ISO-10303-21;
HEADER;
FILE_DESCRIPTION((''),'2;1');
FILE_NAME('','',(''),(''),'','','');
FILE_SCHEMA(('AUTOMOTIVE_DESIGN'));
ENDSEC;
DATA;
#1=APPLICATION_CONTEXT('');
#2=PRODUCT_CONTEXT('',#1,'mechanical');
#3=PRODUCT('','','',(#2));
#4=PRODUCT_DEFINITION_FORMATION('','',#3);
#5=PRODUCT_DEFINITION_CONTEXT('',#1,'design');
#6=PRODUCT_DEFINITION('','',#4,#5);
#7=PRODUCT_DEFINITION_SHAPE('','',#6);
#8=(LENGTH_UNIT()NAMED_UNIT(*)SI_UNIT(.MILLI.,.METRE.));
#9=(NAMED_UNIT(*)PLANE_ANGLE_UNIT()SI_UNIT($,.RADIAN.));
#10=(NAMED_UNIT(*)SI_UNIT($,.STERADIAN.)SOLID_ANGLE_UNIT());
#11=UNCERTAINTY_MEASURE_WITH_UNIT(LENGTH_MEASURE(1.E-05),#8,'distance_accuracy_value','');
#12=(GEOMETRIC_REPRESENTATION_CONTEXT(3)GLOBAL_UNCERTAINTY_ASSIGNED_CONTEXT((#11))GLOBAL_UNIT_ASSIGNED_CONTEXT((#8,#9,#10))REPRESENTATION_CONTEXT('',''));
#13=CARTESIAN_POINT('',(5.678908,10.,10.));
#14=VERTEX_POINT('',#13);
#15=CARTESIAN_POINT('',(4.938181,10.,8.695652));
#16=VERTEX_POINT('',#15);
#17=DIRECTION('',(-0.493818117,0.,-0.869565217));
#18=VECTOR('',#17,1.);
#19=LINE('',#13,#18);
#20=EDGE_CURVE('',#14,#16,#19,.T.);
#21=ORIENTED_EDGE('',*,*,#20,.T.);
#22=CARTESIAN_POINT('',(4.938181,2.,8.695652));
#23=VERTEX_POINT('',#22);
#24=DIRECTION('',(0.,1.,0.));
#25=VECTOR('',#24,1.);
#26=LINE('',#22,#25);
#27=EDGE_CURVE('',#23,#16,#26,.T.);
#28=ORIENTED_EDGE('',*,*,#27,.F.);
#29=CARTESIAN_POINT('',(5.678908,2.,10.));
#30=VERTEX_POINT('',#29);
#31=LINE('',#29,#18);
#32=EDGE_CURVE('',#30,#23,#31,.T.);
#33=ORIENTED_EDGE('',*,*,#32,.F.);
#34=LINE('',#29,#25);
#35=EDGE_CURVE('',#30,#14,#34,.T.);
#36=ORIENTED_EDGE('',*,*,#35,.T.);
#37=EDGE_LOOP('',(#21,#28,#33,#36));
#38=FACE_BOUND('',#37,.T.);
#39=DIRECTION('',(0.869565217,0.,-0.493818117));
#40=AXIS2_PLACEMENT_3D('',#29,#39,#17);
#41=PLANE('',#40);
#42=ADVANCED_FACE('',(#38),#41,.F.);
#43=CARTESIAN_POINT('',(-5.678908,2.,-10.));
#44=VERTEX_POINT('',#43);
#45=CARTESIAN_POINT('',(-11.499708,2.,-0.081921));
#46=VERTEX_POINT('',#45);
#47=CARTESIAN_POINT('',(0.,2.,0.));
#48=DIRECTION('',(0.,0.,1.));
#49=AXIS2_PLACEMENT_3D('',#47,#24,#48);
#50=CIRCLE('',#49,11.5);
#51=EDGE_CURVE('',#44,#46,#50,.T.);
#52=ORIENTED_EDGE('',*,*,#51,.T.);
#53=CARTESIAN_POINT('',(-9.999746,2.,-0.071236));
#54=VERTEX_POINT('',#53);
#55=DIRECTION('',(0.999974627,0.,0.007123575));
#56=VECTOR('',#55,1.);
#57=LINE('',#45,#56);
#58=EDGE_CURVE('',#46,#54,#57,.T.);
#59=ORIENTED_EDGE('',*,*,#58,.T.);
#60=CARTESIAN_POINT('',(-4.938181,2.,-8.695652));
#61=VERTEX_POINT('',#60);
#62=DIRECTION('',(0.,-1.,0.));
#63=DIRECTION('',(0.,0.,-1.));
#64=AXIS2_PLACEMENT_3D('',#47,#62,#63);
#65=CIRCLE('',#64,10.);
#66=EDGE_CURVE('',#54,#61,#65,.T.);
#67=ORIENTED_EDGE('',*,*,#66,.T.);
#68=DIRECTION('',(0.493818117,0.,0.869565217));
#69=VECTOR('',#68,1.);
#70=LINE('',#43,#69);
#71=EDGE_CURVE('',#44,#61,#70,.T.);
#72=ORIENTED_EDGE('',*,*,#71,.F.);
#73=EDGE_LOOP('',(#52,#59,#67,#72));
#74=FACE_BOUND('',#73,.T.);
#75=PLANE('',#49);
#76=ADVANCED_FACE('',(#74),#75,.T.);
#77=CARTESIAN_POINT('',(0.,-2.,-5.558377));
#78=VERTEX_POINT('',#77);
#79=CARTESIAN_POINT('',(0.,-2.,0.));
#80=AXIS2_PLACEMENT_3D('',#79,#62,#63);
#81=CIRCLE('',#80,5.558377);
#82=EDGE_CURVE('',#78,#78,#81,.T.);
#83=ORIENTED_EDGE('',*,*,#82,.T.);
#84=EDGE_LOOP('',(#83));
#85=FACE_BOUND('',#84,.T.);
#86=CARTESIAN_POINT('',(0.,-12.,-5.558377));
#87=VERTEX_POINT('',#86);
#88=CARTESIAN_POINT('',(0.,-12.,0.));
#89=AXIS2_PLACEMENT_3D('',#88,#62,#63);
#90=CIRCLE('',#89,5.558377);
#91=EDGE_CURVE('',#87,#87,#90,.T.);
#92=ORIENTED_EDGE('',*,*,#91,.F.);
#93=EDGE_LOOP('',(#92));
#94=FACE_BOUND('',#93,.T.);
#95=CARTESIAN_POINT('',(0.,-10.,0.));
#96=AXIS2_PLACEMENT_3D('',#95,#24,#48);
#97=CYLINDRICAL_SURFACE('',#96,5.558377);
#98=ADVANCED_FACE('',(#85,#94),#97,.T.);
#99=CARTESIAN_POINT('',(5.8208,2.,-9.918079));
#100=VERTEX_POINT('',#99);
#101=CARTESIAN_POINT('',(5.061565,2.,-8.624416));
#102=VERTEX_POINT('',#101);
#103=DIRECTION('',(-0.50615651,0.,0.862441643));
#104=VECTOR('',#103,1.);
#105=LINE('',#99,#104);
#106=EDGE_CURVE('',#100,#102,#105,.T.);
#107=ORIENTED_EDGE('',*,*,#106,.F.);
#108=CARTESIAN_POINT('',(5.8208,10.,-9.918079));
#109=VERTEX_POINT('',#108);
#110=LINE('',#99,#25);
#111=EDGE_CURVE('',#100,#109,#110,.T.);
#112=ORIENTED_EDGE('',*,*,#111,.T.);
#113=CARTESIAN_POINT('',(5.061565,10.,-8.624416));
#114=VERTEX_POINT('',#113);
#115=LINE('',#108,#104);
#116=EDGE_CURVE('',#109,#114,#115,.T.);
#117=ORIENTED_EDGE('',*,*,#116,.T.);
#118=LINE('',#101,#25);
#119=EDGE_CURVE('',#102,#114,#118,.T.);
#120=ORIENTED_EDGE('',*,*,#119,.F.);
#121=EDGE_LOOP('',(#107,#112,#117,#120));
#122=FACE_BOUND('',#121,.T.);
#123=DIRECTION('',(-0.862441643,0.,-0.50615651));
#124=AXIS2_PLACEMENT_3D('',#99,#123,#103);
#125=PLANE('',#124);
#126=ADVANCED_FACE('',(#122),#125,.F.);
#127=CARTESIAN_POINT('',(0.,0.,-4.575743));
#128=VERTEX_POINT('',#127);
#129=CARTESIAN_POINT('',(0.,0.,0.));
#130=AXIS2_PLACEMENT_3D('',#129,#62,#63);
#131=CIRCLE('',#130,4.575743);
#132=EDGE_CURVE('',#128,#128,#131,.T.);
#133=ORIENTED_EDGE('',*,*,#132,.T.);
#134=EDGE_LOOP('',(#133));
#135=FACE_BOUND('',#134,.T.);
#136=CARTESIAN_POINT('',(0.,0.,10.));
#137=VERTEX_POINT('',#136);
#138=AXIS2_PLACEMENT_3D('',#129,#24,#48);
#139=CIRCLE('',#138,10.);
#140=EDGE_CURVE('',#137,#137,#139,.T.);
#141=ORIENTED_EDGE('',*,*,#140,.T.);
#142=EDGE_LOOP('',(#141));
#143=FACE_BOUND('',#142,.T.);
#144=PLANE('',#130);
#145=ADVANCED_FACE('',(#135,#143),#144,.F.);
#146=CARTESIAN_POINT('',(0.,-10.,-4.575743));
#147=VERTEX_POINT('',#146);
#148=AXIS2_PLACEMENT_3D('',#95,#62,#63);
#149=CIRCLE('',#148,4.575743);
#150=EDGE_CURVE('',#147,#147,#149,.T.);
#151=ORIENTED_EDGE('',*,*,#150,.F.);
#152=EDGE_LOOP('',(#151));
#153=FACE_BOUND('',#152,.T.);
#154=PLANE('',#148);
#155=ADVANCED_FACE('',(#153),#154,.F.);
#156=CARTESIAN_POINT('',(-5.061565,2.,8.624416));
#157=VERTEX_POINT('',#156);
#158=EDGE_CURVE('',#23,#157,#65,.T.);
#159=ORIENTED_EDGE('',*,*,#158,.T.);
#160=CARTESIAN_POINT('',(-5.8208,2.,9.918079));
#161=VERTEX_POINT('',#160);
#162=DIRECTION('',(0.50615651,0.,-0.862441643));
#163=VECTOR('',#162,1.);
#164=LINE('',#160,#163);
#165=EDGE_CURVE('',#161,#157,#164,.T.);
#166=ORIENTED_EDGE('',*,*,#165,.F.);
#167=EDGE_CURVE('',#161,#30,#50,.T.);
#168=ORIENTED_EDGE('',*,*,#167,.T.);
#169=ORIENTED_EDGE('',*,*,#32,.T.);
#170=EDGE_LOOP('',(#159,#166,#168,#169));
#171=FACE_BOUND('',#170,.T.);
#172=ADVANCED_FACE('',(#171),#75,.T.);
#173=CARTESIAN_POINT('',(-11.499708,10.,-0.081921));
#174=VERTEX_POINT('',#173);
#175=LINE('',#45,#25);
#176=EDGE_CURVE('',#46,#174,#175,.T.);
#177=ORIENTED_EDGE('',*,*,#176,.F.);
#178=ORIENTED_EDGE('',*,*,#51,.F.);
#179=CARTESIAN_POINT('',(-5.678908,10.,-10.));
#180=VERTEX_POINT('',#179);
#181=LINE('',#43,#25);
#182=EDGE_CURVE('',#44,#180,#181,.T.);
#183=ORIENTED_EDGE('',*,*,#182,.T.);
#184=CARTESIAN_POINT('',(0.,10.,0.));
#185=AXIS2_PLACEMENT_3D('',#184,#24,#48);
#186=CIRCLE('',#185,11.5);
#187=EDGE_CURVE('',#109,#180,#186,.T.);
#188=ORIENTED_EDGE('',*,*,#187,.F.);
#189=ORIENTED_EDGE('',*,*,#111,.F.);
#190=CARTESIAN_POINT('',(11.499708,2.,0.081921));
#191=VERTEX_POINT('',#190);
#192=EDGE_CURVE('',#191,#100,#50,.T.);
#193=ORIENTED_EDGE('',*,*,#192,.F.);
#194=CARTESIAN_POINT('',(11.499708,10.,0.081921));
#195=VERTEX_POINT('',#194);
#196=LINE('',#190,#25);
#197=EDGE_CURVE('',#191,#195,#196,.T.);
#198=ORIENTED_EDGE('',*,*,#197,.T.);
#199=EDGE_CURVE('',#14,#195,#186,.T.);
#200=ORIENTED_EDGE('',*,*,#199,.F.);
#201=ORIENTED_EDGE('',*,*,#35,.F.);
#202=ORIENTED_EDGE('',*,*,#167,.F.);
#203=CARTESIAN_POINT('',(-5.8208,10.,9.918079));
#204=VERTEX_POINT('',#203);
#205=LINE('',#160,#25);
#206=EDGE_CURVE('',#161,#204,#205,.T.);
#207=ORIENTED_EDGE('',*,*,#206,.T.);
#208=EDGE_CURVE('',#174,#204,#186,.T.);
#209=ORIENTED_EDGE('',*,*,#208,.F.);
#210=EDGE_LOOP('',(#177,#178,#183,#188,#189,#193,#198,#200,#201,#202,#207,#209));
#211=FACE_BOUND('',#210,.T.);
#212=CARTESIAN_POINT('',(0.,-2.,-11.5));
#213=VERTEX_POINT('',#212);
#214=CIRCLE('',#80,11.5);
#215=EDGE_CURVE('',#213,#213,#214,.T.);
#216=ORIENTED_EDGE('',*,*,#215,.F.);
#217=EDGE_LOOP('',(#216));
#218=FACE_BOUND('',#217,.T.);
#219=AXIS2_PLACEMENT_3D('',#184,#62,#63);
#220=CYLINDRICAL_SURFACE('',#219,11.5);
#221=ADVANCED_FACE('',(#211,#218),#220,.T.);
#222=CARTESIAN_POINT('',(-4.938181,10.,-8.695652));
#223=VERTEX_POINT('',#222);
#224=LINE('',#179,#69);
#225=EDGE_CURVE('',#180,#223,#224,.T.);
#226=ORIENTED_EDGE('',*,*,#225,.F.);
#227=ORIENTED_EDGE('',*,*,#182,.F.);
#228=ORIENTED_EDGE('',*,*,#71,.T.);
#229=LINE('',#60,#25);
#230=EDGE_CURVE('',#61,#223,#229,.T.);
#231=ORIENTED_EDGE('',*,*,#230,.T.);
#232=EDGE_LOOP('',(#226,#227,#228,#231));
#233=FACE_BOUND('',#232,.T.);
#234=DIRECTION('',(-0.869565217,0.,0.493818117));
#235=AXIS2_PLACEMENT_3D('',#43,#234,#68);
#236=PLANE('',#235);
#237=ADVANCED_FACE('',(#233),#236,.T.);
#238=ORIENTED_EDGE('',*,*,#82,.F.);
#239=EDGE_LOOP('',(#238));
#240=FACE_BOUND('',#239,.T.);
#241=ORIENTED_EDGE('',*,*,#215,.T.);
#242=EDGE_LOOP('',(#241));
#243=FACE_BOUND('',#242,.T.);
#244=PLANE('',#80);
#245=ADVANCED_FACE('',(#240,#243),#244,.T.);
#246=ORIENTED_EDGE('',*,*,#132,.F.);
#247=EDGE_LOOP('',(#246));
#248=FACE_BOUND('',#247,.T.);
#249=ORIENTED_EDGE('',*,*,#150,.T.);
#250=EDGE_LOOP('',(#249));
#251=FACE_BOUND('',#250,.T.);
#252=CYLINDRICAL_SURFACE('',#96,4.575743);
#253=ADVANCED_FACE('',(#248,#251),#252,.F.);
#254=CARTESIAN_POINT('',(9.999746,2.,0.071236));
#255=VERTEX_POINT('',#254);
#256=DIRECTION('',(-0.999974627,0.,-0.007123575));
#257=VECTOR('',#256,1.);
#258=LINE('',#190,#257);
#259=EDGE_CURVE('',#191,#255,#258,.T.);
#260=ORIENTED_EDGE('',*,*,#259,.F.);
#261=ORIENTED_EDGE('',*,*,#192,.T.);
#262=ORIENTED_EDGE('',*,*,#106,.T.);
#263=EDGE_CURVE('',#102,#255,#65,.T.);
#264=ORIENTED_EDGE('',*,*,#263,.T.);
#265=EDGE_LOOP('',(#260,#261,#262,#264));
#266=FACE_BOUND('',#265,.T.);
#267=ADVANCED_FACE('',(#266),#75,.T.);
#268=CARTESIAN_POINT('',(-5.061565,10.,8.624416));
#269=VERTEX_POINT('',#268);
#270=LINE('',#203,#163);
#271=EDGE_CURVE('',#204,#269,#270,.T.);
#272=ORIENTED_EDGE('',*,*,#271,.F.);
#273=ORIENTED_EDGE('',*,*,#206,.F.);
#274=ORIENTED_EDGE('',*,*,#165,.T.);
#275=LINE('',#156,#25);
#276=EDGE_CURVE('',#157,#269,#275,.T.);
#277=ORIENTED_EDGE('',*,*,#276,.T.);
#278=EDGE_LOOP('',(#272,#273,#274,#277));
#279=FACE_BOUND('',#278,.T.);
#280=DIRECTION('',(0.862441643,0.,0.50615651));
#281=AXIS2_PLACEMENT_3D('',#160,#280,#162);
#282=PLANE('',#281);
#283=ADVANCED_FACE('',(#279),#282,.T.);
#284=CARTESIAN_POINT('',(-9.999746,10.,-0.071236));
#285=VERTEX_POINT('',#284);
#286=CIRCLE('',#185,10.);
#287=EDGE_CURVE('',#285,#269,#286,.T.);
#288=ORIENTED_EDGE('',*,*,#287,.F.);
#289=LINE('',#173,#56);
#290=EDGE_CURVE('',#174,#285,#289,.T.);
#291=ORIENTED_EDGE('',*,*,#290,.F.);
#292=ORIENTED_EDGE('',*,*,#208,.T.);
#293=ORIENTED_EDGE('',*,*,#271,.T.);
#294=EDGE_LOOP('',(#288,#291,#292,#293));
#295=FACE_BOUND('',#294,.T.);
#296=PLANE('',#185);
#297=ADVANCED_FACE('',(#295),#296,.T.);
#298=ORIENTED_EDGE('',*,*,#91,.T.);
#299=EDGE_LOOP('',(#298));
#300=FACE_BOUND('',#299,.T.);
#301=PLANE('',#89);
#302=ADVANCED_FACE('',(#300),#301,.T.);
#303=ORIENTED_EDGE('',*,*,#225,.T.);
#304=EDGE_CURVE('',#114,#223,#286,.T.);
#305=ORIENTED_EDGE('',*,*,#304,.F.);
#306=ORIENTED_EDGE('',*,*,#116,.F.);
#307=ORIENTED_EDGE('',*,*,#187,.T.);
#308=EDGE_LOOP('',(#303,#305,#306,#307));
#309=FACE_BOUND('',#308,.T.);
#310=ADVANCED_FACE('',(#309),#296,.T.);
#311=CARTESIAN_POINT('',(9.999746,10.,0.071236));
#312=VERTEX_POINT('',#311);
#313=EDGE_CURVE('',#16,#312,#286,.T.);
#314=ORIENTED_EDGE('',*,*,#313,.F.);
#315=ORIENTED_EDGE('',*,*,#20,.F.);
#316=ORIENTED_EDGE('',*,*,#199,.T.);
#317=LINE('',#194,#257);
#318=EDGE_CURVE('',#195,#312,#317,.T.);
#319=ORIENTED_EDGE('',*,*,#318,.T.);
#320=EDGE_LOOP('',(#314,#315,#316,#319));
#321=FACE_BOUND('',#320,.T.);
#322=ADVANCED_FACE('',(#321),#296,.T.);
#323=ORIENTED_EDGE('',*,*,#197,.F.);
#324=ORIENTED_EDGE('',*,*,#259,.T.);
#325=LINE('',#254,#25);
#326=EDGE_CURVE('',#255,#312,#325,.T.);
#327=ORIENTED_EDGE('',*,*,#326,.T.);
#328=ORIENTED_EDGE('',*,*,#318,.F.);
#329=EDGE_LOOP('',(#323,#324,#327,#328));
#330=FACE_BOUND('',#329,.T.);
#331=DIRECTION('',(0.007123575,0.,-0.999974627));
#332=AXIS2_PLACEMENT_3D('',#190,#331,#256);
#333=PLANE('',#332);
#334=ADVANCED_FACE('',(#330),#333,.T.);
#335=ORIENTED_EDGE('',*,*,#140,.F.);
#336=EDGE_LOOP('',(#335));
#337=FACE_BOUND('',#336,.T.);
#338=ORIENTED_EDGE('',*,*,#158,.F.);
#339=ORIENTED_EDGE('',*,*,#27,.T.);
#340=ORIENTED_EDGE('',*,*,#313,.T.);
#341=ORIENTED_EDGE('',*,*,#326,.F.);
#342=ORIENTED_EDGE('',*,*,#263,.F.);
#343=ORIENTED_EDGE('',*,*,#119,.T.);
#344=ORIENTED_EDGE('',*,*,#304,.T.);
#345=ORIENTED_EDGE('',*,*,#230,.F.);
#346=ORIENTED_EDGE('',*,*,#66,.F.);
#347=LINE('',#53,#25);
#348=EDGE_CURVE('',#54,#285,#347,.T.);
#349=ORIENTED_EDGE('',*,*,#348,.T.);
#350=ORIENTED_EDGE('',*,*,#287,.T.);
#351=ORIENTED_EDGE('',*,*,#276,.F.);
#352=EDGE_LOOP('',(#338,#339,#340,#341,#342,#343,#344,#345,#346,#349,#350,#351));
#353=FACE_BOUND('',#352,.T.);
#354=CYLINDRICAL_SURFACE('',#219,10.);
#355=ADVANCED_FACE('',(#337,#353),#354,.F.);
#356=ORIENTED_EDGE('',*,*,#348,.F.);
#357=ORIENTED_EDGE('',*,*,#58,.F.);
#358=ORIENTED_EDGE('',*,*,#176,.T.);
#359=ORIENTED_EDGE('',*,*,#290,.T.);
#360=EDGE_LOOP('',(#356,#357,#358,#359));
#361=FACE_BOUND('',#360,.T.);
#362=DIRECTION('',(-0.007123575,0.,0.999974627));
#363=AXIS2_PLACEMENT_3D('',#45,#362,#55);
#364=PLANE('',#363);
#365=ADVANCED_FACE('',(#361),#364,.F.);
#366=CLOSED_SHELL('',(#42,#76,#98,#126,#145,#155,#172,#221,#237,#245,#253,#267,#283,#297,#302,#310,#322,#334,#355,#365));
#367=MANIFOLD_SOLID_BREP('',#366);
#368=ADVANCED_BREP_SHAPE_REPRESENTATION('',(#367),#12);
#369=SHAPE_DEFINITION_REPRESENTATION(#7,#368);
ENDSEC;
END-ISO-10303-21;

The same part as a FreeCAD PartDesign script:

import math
import FreeCAD as App
import Part
import Sketcher

doc = App.newDocument("Part")
body = doc.addObject("PartDesign::Body", "Body")

# Sketch on XZ plane
sketch1 = doc.addObject("Sketcher::SketchObject", "Sketch")
body.addObject(sketch1)
sketch1.AttachmentSupport = (doc.XZ_Plane, [""])
sketch1.MapMode = "FlatFace"
sketch1.addGeometry([
    Part.Circle(App.Vector(0, 0, 0), App.Vector(0, 0, 1), 11.5),
    Part.Circle(App.Vector(0, 0, 0), App.Vector(0, 0, 1), 10),
], False)
sketch1.addConstraint([
    Sketcher.Constraint("Coincident", 0, 3, -1, 1),
    Sketcher.Constraint("Coincident", 1, 3, -1, 1),
    Sketcher.Constraint("Diameter", 0, 23.0),
    Sketcher.Constraint("Diameter", 1, 20.0),
])
pad1 = doc.addObject("PartDesign::Pad", "Pad")
body.addObject(pad1)
pad1.Profile = sketch1
pad1.Length = 10
pad1.Reversed = True

# Sketch on XZ plane
sketch2 = doc.addObject("Sketcher::SketchObject", "Sketch001")
body.addObject(sketch2)
sketch2.AttachmentSupport = (doc.XZ_Plane, [""])
sketch2.MapMode = "FlatFace"
sketch2.addGeometry([
    Part.Circle(App.Vector(0, 0, 0), App.Vector(0, 0, 1), 11.5),
    Part.Circle(App.Vector(0, 0, 0), App.Vector(0, 0, 1), 5.558377),
], False)
sketch2.addConstraint([
    Sketcher.Constraint("Coincident", 0, 3, -1, 1),
    Sketcher.Constraint("Coincident", 1, 3, -1, 1),
    Sketcher.Constraint("Diameter", 0, 23.0),
    Sketcher.Constraint("Diameter", 1, 11.116753),
])
pad2 = doc.addObject("PartDesign::Pad", "Pad001")
body.addObject(pad2)
pad2.Profile = sketch2
pad2.Length = 2

# Sketch on XZ plane
sketch3 = doc.addObject("Sketcher::SketchObject", "Sketch002")
body.addObject(sketch3)
sketch3.AttachmentSupport = (doc.XZ_Plane, [""])
sketch3.MapMode = "FlatFace"
sketch3.addGeometry([
    Part.Circle(App.Vector(0, 0, 0), App.Vector(0, 0, 1), 5.558377),
    Part.Circle(App.Vector(0, 0, 0), App.Vector(0, 0, 1), 4.575743),
], False)
sketch3.addConstraint([
    Sketcher.Constraint("Coincident", 0, 3, -1, 1),
    Sketcher.Constraint("Coincident", 1, 3, -1, 1),
    Sketcher.Constraint("Diameter", 0, 11.116753),
    Sketcher.Constraint("Diameter", 1, 9.151487),
])
pad3 = doc.addObject("PartDesign::Pad", "Pad002")
body.addObject(pad3)
pad3.Profile = sketch3
pad3.Length = 10

# Sketch on XZ plane
sketch4 = doc.addObject("Sketcher::SketchObject", "Sketch003")
body.addObject(sketch4)
sketch4.AttachmentSupport = (doc.XZ_Plane, [""])
sketch4.MapMode = "FlatFace"
sketch4.AttachmentOffset = App.Placement(App.Vector(0, 0, 10), App.Rotation())
sketch4.addGeometry(Part.Circle(App.Vector(0, 0, 0), App.Vector(0, 0, 1), 5.558377), False)
sketch4.addConstraint([
    Sketcher.Constraint("Coincident", 0, 3, -1, 1),
    Sketcher.Constraint("Diameter", 0, 11.116753),
])
pad4 = doc.addObject("PartDesign::Pad", "Pad003")
body.addObject(pad4)
pad4.Profile = sketch4
pad4.Length = 2

# Sketch on XZ plane
sketch5 = doc.addObject("Sketcher::SketchObject", "Sketch004")
body.addObject(sketch5)
sketch5.AttachmentSupport = (doc.XZ_Plane, [""])
sketch5.MapMode = "FlatFace"
sketch5.AttachmentOffset = App.Placement(App.Vector(0, 0, -10), App.Rotation())
sketch5.addGeometry([
    Part.LineSegment(App.Vector(-5.061565, 8.624416, 0), App.Vector(-5.8208, 9.918079, 0)),  # 0
    Part.ArcOfCircle(Part.Circle(App.Vector(0, 0, 0), App.Vector(0, 0, 1), 11.5), math.radians(60.408154), math.radians(120.408154)),  # 1
    Part.LineSegment(App.Vector(5.678908, 10, 0), App.Vector(4.938181, 8.695652, 0)),  # 2
    Part.ArcOfCircle(Part.Circle(App.Vector(0, 0, 0), App.Vector(0, 0, 1), 10), math.radians(60.408154), math.radians(120.408154)),  # 3
    Part.LineSegment(App.Vector(-4.938181, -8.695652, 0), App.Vector(-5.678908, -10, 0)),  # 4
    Part.ArcOfCircle(Part.Circle(App.Vector(0, 0, 0), App.Vector(0, 0, 1), 11.5), math.radians(-179.591846), math.radians(-119.591846)),  # 5
    Part.LineSegment(App.Vector(-11.499708, -0.081921, 0), App.Vector(-9.999746, -0.071236, 0)),  # 6
    Part.ArcOfCircle(Part.Circle(App.Vector(0, 0, 0), App.Vector(0, 0, 1), 10), math.radians(-179.591846), math.radians(-119.591846)),  # 7
    Part.LineSegment(App.Vector(9.999746, 0.071236, 0), App.Vector(11.499708, 0.081921, 0)),  # 8
    Part.ArcOfCircle(Part.Circle(App.Vector(0, 0, 0), App.Vector(0, 0, 1), 11.5), math.radians(-59.591846), math.radians(0.408154)),  # 9
    Part.LineSegment(App.Vector(5.8208, -9.918079, 0), App.Vector(5.061565, -8.624416, 0)),  # 10
    Part.ArcOfCircle(Part.Circle(App.Vector(0, 0, 0), App.Vector(0, 0, 1), 10), math.radians(-59.591846), math.radians(0.408154)),  # 11
], False)
sketch5.addConstraint([
    Sketcher.Constraint("Coincident", 0, 2, 1, 2),
    Sketcher.Constraint("Coincident", 1, 1, 2, 1),
    Sketcher.Constraint("Coincident", 2, 2, 3, 1),
    Sketcher.Constraint("Coincident", 3, 2, 0, 1),
    Sketcher.Constraint("Coincident", 4, 2, 5, 2),
    Sketcher.Constraint("Coincident", 5, 1, 6, 1),
    Sketcher.Constraint("Coincident", 6, 2, 7, 1),
    Sketcher.Constraint("Coincident", 7, 2, 4, 1),
    Sketcher.Constraint("Coincident", 8, 2, 9, 2),
    Sketcher.Constraint("Coincident", 9, 1, 10, 1),
    Sketcher.Constraint("Coincident", 10, 2, 11, 1),
    Sketcher.Constraint("Coincident", 11, 2, 8, 1),
    Sketcher.Constraint("Coincident", 1, 3, -1, 1),
    Sketcher.Constraint("Coincident", 3, 3, -1, 1),
    Sketcher.Constraint("Coincident", 5, 3, -1, 1),
    Sketcher.Constraint("Coincident", 7, 3, -1, 1),
    Sketcher.Constraint("Coincident", 9, 3, -1, 1),
    Sketcher.Constraint("Coincident", 11, 3, -1, 1),
    Sketcher.Constraint("Equal", 1, 5),
    Sketcher.Constraint("Equal", 3, 7),
    Sketcher.Constraint("Equal", 5, 9),
    Sketcher.Constraint("Equal", 7, 11),
    Sketcher.Constraint("Parallel", 2, 4),
    Sketcher.Constraint("Parallel", 6, 8),
    Sketcher.Constraint("Parallel", 0, 10),
    Sketcher.Constraint("Radius", 3, 10.0),
    Sketcher.Constraint("Radius", 1, 11.5),
    Sketcher.Constraint("DistanceY", -1, 1, 1, 1, 10.0),
    Sketcher.Constraint("DistanceY", 4, 2, -1, 1, 10.0),
    Sketcher.Constraint("DistanceY", 5, 1, 0, 2, 10.0),
    Sketcher.Constraint("DistanceY", 9, 1, 8, 2, 10.0),
    Sketcher.Constraint("DistanceX", 0, 2, -1, 1, 5.8208),
    Sketcher.Constraint("DistanceX", -1, 1, 9, 1, 5.8208),
    Sketcher.Constraint("DistanceX", -1, 1, 2, 2, 4.938181),
    Sketcher.Constraint("DistanceX", 5, 1, 6, 2, 1.499962),
    Sketcher.Constraint("DistanceX", 3, 2, -1, 1, 5.061565),
])
pocket1 = doc.addObject("PartDesign::Pocket", "Pocket")
body.addObject(pocket1)
pocket1.Profile = sketch5
pocket1.Length = 8
pocket1.Reversed = True

doc.recompute()
